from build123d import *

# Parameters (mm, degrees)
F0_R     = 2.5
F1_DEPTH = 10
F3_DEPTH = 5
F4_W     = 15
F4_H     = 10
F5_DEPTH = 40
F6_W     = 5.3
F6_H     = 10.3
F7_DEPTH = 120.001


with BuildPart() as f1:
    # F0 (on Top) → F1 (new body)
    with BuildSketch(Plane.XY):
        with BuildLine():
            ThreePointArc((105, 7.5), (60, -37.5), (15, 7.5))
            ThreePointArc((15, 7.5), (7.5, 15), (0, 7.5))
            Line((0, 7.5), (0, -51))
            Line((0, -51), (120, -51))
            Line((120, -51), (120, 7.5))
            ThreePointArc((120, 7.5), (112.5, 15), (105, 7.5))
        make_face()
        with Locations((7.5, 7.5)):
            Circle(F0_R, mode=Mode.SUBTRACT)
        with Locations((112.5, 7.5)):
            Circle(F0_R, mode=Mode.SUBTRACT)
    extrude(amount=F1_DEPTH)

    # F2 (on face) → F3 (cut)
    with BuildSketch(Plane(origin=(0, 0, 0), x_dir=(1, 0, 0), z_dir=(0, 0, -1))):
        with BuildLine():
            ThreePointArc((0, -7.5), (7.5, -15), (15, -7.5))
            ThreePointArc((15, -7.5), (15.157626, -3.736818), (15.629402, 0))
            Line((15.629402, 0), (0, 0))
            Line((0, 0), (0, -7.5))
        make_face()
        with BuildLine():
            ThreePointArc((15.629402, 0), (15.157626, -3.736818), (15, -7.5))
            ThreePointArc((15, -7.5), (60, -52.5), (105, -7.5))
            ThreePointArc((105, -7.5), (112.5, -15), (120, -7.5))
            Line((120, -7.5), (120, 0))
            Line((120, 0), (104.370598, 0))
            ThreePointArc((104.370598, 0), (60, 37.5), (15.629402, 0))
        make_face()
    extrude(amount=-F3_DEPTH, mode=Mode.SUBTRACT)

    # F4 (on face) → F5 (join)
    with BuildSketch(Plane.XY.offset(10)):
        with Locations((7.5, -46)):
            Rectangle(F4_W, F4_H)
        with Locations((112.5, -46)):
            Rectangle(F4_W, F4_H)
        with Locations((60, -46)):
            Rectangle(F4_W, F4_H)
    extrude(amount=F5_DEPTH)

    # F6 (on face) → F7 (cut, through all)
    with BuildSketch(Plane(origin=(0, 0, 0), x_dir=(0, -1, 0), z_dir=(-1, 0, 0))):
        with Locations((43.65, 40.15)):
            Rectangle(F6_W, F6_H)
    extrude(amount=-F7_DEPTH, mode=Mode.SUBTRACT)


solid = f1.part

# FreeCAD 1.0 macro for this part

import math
import FreeCAD as App
import Part
import Sketcher
from FreeCAD import Vector


def add_polygon(sketch, points):
    """Adds a closed chain of lines whose ends are joined by coincident constraints."""
    first, n = sketch.GeometryCount, len(points)
    for a, b in zip(points, points[1:] + points[:1]):
        sketch.addGeometry(Part.LineSegment(App.Vector(*a, 0), App.Vector(*b, 0)), False)
    for i in range(n):
        sketch.addConstraint(Sketcher.Constraint("Coincident", first + i, 2, first + (i + 1) % n, 1))

doc = App.newDocument("Part")
body = doc.addObject("PartDesign::Body", "Body")

# Sketch on XY plane
sketch1 = doc.addObject("Sketcher::SketchObject", "Sketch")
body.addObject(sketch1)
sketch1.AttachmentSupport = (doc.XY_Plane, [""])
sketch1.MapMode = "FlatFace"
sketch1.addGeometry([
    Part.ArcOfCircle(Part.Circle(Vector(60, 7.5, 0), Vector(0, 0, 1), 45), math.radians(180), math.radians(360)),  # 0
    Part.ArcOfCircle(Part.Circle(Vector(7.5, 7.5, 0), Vector(0, 0, 1), 7.5), math.radians(0), math.radians(180)),  # 1
    Part.LineSegment(Vector(0, 7.5, 0), Vector(0, -51, 0)),  # 2
    Part.LineSegment(Vector(0, -51, 0), Vector(120, -51, 0)),  # 3
    Part.LineSegment(Vector(120, -51, 0), Vector(120, 7.5, 0)),  # 4
    Part.ArcOfCircle(Part.Circle(Vector(112.5, 7.5, 0), Vector(0, 0, 1), 7.5), math.radians(0), math.radians(180)),  # 5
    Part.Circle(Vector(7.5, 7.5, 0), Vector(0, 0, 1), 2.5),  # 6
    Part.Circle(Vector(112.5, 7.5, 0), Vector(0, 0, 1), 2.5),  # 7
], False)
sketch1.addConstraint([
    Sketcher.Constraint("Tangent", 0, 1, 1, 1),
    Sketcher.Constraint("Tangent", 1, 2, 2, 1),
    Sketcher.Constraint("Coincident", 2, 2, 3, 1),
    Sketcher.Constraint("Coincident", 3, 2, 4, 1),
    Sketcher.Constraint("Tangent", 4, 2, 5, 1),
    Sketcher.Constraint("Tangent", 5, 2, 0, 2),
    Sketcher.Constraint("Vertical", 2),
    Sketcher.Constraint("Horizontal", 3),
    Sketcher.Constraint("Vertical", 4),
    Sketcher.Constraint("Coincident", 6, 3, 1, 3),
    Sketcher.Constraint("Coincident", 7, 3, 5, 3),
    Sketcher.Constraint("Equal", 1, 5),
    Sketcher.Constraint("Equal", 6, 7),
    Sketcher.Constraint("PointOnObject", 1, 2, -2),
    Sketcher.Constraint("Horizontal", 0, 3, 1, 3),
    Sketcher.Constraint("Horizontal", 1, 3, 5, 3),
    Sketcher.Constraint("Diameter", 6, 5.0),
    Sketcher.Constraint("Radius", 0, 45.0),
    Sketcher.Constraint("Radius", 1, 7.5),
    Sketcher.Constraint("DistanceY", 2, 2, 2, 1, 58.5),
    Sketcher.Constraint("DistanceY", 2, 2, -1, 1, 51.0),
])
pad1 = doc.addObject("PartDesign::Pad", "Pad")
body.addObject(pad1)
pad1.Profile = sketch1
pad1.Length = 10

# Sketch on XY plane
sketch2 = doc.addObject("Sketcher::SketchObject", "Sketch001")
body.addObject(sketch2)
sketch2.AttachmentSupport = (doc.XY_Plane, [""])
sketch2.MapMode = "FlatFace"
sketch2.addGeometry([
    Part.ArcOfCircle(Part.Circle(Vector(8, 8, 0), Vector(0, 0, 1), 8), math.radians(0), math.radians(180)),  # 0
    Part.ArcOfCircle(Part.Circle(Vector(60, 8, 0), Vector(0, 0, 1), 45), math.radians(0), math.radians(180)),  # 1
    Part.ArcOfCircle(Part.Circle(Vector(112, 8, 0), Vector(0, 0, 1), 8), math.radians(0), math.radians(180)),  # 2
    Part.LineSegment(Vector(120, 8, 0), Vector(120, 0, 0)),  # 3
    Part.LineSegment(Vector(120, 0, 0), Vector(104, 0, 0)),  # 4
    Part.ArcOfCircle(Part.Circle(Vector(60, 7, 0), Vector(0, 0, 1), 45), math.radians(-170), math.radians(-10)),  # 5
    Part.LineSegment(Vector(16, 0, 0), Vector(0, 0, 0)),  # 6
    Part.LineSegment(Vector(0, 0, 0), Vector(0, 8, 0)),  # 7
], False)
sketch2.addConstraint([
    Sketcher.Constraint("Tangent", 0, 1, 1, 2),
    Sketcher.Constraint("Tangent", 1, 1, 2, 2),
    Sketcher.Constraint("Tangent", 2, 1, 3, 1),
    Sketcher.Constraint("Coincident", 3, 2, 4, 1),
    Sketcher.Constraint("Coincident", 4, 2, 5, 2),
    Sketcher.Constraint("Coincident", 5, 1, 6, 1),
    Sketcher.Constraint("Coincident", 6, 2, 7, 1),
    Sketcher.Constraint("Tangent", 7, 2, 0, 2),
    Sketcher.Constraint("Vertical", 3),
    Sketcher.Constraint("Horizontal", 4),
    Sketcher.Constraint("Horizontal", 6),
    Sketcher.Constraint("Vertical", 7),
    Sketcher.Constraint("Coincident", 6, 2, -1, 1),
    Sketcher.Constraint("Coincident", 5, 3, 1, 3),
    Sketcher.Constraint("Equal", 0, 2),
    Sketcher.Constraint("Equal", 1, 5),
    Sketcher.Constraint("PointOnObject", 3, 2, -1),
    Sketcher.Constraint("Horizontal", 0, 3, 1, 3),
    Sketcher.Constraint("Horizontal", 1, 3, 2, 3),
    Sketcher.Constraint("Radius", 1, 45.0),
    Sketcher.Constraint("Radius", 0, 7.5),
    Sketcher.Constraint("DistanceY", 3, 2, 3, 1, 7.5),
])
pocket1 = doc.addObject("PartDesign::Pocket", "Pocket")
body.addObject(pocket1)
pocket1.Profile = sketch2
pocket1.Length = 5
pocket1.Reversed = True

# Sketch on XY plane
sketch3 = doc.addObject("Sketcher::SketchObject", "Sketch002")
body.addObject(sketch3)
sketch3.AttachmentSupport = (doc.XY_Plane, [""])
sketch3.MapMode = "FlatFace"
sketch3.AttachmentOffset = App.Placement(Vector(0, 0, 10), App.Rotation())
add_polygon(sketch3, [(0, -41), (0, -51), (15, -51), (15, -41)])  # lines 0-3
add_polygon(sketch3, [(105, -41), (105, -51), (120, -51), (120, -41)])  # lines 4-7
add_polygon(sketch3, [(52, -41), (52, -51), (68, -51), (68, -41)])  # lines 8-11
sketch3.addConstraint([
    Sketcher.Constraint("Vertical", 0),
    Sketcher.Constraint("Horizontal", 1),
    Sketcher.Constraint("Vertical", 2),
    Sketcher.Constraint("Horizontal", 3),
    Sketcher.Constraint("Vertical", 4),
    Sketcher.Constraint("Horizontal", 5),
    Sketcher.Constraint("Vertical", 6),
    Sketcher.Constraint("Horizontal", 7),
    Sketcher.Constraint("Vertical", 8),
    Sketcher.Constraint("Horizontal", 9),
    Sketcher.Constraint("Vertical", 10),
    Sketcher.Constraint("Horizontal", 11),
    Sketcher.Constraint("PointOnObject", 0, 2, -2),
    Sketcher.Constraint("Horizontal", 1, 2, 4, 2),
    Sketcher.Constraint("Horizontal", 3, 2, 6, 2),
    Sketcher.Constraint("Horizontal", 5, 2, 8, 2),
    Sketcher.Constraint("Horizontal", 7, 2, 10, 2),
    Sketcher.Constraint("Equal", 3, 5),
    Sketcher.Constraint("Equal", 7, 9),
    Sketcher.Constraint("DistanceX", 1, 1, 1, 2, 15.0),
    Sketcher.Constraint("DistanceY", 0, 2, 0, 1, 10.0),
    Sketcher.Constraint("DistanceY", 0, 2, -1, 1, 51.0),
    Sketcher.Constraint("DistanceX", -1, 1, 4, 2, 105.0),
    Sketcher.Constraint("DistanceX", -1, 1, 8, 2, 52.5),
])
pad2 = doc.addObject("PartDesign::Pad", "Pad001")
body.addObject(pad2)
pad2.Profile = sketch3
pad2.Length = 40

# Sketch on YZ plane
sketch4 = doc.addObject("Sketcher::SketchObject", "Sketch003")
body.addObject(sketch4)
sketch4.AttachmentSupport = (doc.YZ_Plane, [""])
sketch4.MapMode = "FlatFace"
add_polygon(sketch4, [(-41, 45), (-41, 35), (-46, 35), (-46, 45)])  # lines 0-3
sketch4.addConstraint([
    Sketcher.Constraint("Vertical", 0),
    Sketcher.Constraint("Horizontal", 1),
    Sketcher.Constraint("Vertical", 2),
    Sketcher.Constraint("Horizontal", 3),
    Sketcher.Constraint("DistanceX", 1, 2, 1, 1, 5.3),
    Sketcher.Constraint("DistanceY", 0, 2, 0, 1, 10.3),
    Sketcher.Constraint("DistanceX", 0, 2, -1, 1, 41.0),
    Sketcher.Constraint("DistanceY", -1, 1, 0, 2, 35.0),
])
pocket2 = doc.addObject("PartDesign::Pocket", "Pocket001")
body.addObject(pocket2)
pocket2.Profile = sketch4
pocket2.Type = "ThroughAll"
pocket2.Reversed = True

doc.recompute()
